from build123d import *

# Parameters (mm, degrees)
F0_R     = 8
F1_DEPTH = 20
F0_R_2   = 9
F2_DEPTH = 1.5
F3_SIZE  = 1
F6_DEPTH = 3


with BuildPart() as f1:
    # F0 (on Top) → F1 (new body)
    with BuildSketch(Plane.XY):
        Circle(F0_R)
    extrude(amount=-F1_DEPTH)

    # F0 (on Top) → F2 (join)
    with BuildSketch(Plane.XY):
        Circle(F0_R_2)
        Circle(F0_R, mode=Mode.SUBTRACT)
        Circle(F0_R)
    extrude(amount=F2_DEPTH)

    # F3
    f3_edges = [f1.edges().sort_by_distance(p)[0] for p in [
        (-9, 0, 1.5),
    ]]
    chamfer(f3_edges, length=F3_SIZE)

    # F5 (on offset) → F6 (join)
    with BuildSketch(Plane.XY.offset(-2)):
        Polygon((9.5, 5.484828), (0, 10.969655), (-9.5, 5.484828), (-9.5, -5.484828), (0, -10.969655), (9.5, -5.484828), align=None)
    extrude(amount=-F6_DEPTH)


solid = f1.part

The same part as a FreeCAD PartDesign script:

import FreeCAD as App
import Part
import Sketcher

V = App.Vector
Q = App.Units.Quantity


def edges_at(feature, points):
    """Names of the edges that pass closest to the given points."""
    edges = feature.Shape.Edges
    near = lambda p: min(range(len(edges)), key=lambda i: edges[i].distToShape(Part.Vertex(*p))[0])
    return sorted({f"Edge{near(p) + 1}" for p in points})


def add_polygon(sketch, points):
    """Adds a closed chain of lines whose ends are joined by coincident constraints."""
    first, n = sketch.GeometryCount, len(points)
    for a, b in zip(points, points[1:] + points[:1]):
        sketch.addGeometry(Part.LineSegment(App.Vector(*a, 0), App.Vector(*b, 0)), False)
    for i in range(n):
        sketch.addConstraint(Sketcher.Constraint("Coincident", first + i, 2, first + (i + 1) % n, 1))

doc = App.newDocument("Part")
params = doc.addObject("Spreadsheet::Sheet", "Params")
for row, (alias, value) in enumerate([
    ("sketch1_diameter", "16 mm"),
    ("pad1_length", "20 mm"),
    ("sketch2_diameter", "18 mm"),
    ("pad2_length", "1.5 mm"),
    ("chamfer_size", "1 mm"),
    ("pad3_length", "3 mm"),
], start=1):
    params.set(f"A{row}", alias)
    params.set(f"B{row}", "=" + value)
    params.setAlias(f"B{row}", alias)

body = doc.addObject("PartDesign::Body", "Body")

# Sketch on XY plane
sketch1 = body.newObject("Sketcher::SketchObject", "Sketch")
sketch1.AttachmentSupport = (doc.getObject("XY_Plane"), [""])
sketch1.MapMode = "FlatFace"
sketch1.addGeometry(Part.Circle(V(0, 0, 0), V(0, 0, 1), 8), False)
sketch1.addConstraint(Sketcher.Constraint("Coincident", 0, 3, -1, 1))
sketch1.addConstraint(Sketcher.Constraint("Diameter", 0, 16.0))
sketch1.setExpression("Constraints[1]", "Params.sketch1_diameter")
pad1 = body.newObject("PartDesign::Pad", "Pad")
pad1.Profile = sketch1
pad1.setExpression("Length", "Params.pad1_length")
pad1.Reversed = True

# Sketch on XY plane
sketch2 = body.newObject("Sketcher::SketchObject", "Sketch001")
sketch2.AttachmentSupport = (doc.getObject("XY_Plane"), [""])
sketch2.MapMode = "FlatFace"
sketch2.addGeometry(Part.Circle(V(0, 0, 0), V(0, 0, 1), 9), False)
sketch2.addConstraint(Sketcher.Constraint("Coincident", 0, 3, -1, 1))
sketch2.addConstraint(Sketcher.Constraint("Diameter", 0, 18.0))
sketch2.setExpression("Constraints[1]", "Params.sketch2_diameter")
pad2 = body.newObject("PartDesign::Pad", "Pad001")
pad2.Profile = sketch2
pad2.setExpression("Length", "Params.pad2_length")
doc.recompute()

chamfer = body.newObject("PartDesign::Chamfer", "Chamfer")
chamfer.Base = (pad2, edges_at(pad2, [(-9, 0, 1.5)]))
chamfer.setExpression("Size", "Params.chamfer_size")

# Sketch on XY plane
sketch3 = body.newObject("Sketcher::SketchObject", "Sketch002")
sketch3.AttachmentSupport = (doc.getObject("XY_Plane"), [""])
sketch3.MapMode = "FlatFace"
sketch3.AttachmentOffset = App.Placement(V(0, 0, -2), App.Rotation())
add_polygon(sketch3, [(10, 5), (0, 11), (-10, 5), (-10, -5), (0, -11), (10, -5)])  # lines 0-5
sketch3.addConstraint(Sketcher.Constraint("Vertical", 2))
sketch3.addConstraint(Sketcher.Constraint("Vertical", 5))
sketch3.addConstraint(Sketcher.Constraint("Symmetric", 0, 2, 3, 2, -1, 1))
sketch3.addConstraint(Sketcher.Constraint("Symmetric", 1, 2, 4, 2, -1, 1))
sketch3.addConstraint(Sketcher.Constraint("PointOnObject", 0, 2, -2))
sketch3.addConstraint(Sketcher.Constraint("Parallel", 0, 3))
sketch3.addConstraint(Sketcher.Constraint("Horizontal", 2, 2, 4, 2))
sketch3.addConstraint(Sketcher.Constraint("Angle", 0, Q("150.000003 deg")))
sketch3.addConstraint(Sketcher.Constraint("DistanceX", 2, 2, 4, 2, 19.0))
sketch3.addConstraint(Sketcher.Constraint("DistanceY", 2, 2, 2, 1, 10.969656))
pad3 = body.newObject("PartDesign::Pad", "Pad002")
pad3.Profile = sketch3
pad3.setExpression("Length", "Params.pad3_length")
pad3.Reversed = True

doc.recompute()
